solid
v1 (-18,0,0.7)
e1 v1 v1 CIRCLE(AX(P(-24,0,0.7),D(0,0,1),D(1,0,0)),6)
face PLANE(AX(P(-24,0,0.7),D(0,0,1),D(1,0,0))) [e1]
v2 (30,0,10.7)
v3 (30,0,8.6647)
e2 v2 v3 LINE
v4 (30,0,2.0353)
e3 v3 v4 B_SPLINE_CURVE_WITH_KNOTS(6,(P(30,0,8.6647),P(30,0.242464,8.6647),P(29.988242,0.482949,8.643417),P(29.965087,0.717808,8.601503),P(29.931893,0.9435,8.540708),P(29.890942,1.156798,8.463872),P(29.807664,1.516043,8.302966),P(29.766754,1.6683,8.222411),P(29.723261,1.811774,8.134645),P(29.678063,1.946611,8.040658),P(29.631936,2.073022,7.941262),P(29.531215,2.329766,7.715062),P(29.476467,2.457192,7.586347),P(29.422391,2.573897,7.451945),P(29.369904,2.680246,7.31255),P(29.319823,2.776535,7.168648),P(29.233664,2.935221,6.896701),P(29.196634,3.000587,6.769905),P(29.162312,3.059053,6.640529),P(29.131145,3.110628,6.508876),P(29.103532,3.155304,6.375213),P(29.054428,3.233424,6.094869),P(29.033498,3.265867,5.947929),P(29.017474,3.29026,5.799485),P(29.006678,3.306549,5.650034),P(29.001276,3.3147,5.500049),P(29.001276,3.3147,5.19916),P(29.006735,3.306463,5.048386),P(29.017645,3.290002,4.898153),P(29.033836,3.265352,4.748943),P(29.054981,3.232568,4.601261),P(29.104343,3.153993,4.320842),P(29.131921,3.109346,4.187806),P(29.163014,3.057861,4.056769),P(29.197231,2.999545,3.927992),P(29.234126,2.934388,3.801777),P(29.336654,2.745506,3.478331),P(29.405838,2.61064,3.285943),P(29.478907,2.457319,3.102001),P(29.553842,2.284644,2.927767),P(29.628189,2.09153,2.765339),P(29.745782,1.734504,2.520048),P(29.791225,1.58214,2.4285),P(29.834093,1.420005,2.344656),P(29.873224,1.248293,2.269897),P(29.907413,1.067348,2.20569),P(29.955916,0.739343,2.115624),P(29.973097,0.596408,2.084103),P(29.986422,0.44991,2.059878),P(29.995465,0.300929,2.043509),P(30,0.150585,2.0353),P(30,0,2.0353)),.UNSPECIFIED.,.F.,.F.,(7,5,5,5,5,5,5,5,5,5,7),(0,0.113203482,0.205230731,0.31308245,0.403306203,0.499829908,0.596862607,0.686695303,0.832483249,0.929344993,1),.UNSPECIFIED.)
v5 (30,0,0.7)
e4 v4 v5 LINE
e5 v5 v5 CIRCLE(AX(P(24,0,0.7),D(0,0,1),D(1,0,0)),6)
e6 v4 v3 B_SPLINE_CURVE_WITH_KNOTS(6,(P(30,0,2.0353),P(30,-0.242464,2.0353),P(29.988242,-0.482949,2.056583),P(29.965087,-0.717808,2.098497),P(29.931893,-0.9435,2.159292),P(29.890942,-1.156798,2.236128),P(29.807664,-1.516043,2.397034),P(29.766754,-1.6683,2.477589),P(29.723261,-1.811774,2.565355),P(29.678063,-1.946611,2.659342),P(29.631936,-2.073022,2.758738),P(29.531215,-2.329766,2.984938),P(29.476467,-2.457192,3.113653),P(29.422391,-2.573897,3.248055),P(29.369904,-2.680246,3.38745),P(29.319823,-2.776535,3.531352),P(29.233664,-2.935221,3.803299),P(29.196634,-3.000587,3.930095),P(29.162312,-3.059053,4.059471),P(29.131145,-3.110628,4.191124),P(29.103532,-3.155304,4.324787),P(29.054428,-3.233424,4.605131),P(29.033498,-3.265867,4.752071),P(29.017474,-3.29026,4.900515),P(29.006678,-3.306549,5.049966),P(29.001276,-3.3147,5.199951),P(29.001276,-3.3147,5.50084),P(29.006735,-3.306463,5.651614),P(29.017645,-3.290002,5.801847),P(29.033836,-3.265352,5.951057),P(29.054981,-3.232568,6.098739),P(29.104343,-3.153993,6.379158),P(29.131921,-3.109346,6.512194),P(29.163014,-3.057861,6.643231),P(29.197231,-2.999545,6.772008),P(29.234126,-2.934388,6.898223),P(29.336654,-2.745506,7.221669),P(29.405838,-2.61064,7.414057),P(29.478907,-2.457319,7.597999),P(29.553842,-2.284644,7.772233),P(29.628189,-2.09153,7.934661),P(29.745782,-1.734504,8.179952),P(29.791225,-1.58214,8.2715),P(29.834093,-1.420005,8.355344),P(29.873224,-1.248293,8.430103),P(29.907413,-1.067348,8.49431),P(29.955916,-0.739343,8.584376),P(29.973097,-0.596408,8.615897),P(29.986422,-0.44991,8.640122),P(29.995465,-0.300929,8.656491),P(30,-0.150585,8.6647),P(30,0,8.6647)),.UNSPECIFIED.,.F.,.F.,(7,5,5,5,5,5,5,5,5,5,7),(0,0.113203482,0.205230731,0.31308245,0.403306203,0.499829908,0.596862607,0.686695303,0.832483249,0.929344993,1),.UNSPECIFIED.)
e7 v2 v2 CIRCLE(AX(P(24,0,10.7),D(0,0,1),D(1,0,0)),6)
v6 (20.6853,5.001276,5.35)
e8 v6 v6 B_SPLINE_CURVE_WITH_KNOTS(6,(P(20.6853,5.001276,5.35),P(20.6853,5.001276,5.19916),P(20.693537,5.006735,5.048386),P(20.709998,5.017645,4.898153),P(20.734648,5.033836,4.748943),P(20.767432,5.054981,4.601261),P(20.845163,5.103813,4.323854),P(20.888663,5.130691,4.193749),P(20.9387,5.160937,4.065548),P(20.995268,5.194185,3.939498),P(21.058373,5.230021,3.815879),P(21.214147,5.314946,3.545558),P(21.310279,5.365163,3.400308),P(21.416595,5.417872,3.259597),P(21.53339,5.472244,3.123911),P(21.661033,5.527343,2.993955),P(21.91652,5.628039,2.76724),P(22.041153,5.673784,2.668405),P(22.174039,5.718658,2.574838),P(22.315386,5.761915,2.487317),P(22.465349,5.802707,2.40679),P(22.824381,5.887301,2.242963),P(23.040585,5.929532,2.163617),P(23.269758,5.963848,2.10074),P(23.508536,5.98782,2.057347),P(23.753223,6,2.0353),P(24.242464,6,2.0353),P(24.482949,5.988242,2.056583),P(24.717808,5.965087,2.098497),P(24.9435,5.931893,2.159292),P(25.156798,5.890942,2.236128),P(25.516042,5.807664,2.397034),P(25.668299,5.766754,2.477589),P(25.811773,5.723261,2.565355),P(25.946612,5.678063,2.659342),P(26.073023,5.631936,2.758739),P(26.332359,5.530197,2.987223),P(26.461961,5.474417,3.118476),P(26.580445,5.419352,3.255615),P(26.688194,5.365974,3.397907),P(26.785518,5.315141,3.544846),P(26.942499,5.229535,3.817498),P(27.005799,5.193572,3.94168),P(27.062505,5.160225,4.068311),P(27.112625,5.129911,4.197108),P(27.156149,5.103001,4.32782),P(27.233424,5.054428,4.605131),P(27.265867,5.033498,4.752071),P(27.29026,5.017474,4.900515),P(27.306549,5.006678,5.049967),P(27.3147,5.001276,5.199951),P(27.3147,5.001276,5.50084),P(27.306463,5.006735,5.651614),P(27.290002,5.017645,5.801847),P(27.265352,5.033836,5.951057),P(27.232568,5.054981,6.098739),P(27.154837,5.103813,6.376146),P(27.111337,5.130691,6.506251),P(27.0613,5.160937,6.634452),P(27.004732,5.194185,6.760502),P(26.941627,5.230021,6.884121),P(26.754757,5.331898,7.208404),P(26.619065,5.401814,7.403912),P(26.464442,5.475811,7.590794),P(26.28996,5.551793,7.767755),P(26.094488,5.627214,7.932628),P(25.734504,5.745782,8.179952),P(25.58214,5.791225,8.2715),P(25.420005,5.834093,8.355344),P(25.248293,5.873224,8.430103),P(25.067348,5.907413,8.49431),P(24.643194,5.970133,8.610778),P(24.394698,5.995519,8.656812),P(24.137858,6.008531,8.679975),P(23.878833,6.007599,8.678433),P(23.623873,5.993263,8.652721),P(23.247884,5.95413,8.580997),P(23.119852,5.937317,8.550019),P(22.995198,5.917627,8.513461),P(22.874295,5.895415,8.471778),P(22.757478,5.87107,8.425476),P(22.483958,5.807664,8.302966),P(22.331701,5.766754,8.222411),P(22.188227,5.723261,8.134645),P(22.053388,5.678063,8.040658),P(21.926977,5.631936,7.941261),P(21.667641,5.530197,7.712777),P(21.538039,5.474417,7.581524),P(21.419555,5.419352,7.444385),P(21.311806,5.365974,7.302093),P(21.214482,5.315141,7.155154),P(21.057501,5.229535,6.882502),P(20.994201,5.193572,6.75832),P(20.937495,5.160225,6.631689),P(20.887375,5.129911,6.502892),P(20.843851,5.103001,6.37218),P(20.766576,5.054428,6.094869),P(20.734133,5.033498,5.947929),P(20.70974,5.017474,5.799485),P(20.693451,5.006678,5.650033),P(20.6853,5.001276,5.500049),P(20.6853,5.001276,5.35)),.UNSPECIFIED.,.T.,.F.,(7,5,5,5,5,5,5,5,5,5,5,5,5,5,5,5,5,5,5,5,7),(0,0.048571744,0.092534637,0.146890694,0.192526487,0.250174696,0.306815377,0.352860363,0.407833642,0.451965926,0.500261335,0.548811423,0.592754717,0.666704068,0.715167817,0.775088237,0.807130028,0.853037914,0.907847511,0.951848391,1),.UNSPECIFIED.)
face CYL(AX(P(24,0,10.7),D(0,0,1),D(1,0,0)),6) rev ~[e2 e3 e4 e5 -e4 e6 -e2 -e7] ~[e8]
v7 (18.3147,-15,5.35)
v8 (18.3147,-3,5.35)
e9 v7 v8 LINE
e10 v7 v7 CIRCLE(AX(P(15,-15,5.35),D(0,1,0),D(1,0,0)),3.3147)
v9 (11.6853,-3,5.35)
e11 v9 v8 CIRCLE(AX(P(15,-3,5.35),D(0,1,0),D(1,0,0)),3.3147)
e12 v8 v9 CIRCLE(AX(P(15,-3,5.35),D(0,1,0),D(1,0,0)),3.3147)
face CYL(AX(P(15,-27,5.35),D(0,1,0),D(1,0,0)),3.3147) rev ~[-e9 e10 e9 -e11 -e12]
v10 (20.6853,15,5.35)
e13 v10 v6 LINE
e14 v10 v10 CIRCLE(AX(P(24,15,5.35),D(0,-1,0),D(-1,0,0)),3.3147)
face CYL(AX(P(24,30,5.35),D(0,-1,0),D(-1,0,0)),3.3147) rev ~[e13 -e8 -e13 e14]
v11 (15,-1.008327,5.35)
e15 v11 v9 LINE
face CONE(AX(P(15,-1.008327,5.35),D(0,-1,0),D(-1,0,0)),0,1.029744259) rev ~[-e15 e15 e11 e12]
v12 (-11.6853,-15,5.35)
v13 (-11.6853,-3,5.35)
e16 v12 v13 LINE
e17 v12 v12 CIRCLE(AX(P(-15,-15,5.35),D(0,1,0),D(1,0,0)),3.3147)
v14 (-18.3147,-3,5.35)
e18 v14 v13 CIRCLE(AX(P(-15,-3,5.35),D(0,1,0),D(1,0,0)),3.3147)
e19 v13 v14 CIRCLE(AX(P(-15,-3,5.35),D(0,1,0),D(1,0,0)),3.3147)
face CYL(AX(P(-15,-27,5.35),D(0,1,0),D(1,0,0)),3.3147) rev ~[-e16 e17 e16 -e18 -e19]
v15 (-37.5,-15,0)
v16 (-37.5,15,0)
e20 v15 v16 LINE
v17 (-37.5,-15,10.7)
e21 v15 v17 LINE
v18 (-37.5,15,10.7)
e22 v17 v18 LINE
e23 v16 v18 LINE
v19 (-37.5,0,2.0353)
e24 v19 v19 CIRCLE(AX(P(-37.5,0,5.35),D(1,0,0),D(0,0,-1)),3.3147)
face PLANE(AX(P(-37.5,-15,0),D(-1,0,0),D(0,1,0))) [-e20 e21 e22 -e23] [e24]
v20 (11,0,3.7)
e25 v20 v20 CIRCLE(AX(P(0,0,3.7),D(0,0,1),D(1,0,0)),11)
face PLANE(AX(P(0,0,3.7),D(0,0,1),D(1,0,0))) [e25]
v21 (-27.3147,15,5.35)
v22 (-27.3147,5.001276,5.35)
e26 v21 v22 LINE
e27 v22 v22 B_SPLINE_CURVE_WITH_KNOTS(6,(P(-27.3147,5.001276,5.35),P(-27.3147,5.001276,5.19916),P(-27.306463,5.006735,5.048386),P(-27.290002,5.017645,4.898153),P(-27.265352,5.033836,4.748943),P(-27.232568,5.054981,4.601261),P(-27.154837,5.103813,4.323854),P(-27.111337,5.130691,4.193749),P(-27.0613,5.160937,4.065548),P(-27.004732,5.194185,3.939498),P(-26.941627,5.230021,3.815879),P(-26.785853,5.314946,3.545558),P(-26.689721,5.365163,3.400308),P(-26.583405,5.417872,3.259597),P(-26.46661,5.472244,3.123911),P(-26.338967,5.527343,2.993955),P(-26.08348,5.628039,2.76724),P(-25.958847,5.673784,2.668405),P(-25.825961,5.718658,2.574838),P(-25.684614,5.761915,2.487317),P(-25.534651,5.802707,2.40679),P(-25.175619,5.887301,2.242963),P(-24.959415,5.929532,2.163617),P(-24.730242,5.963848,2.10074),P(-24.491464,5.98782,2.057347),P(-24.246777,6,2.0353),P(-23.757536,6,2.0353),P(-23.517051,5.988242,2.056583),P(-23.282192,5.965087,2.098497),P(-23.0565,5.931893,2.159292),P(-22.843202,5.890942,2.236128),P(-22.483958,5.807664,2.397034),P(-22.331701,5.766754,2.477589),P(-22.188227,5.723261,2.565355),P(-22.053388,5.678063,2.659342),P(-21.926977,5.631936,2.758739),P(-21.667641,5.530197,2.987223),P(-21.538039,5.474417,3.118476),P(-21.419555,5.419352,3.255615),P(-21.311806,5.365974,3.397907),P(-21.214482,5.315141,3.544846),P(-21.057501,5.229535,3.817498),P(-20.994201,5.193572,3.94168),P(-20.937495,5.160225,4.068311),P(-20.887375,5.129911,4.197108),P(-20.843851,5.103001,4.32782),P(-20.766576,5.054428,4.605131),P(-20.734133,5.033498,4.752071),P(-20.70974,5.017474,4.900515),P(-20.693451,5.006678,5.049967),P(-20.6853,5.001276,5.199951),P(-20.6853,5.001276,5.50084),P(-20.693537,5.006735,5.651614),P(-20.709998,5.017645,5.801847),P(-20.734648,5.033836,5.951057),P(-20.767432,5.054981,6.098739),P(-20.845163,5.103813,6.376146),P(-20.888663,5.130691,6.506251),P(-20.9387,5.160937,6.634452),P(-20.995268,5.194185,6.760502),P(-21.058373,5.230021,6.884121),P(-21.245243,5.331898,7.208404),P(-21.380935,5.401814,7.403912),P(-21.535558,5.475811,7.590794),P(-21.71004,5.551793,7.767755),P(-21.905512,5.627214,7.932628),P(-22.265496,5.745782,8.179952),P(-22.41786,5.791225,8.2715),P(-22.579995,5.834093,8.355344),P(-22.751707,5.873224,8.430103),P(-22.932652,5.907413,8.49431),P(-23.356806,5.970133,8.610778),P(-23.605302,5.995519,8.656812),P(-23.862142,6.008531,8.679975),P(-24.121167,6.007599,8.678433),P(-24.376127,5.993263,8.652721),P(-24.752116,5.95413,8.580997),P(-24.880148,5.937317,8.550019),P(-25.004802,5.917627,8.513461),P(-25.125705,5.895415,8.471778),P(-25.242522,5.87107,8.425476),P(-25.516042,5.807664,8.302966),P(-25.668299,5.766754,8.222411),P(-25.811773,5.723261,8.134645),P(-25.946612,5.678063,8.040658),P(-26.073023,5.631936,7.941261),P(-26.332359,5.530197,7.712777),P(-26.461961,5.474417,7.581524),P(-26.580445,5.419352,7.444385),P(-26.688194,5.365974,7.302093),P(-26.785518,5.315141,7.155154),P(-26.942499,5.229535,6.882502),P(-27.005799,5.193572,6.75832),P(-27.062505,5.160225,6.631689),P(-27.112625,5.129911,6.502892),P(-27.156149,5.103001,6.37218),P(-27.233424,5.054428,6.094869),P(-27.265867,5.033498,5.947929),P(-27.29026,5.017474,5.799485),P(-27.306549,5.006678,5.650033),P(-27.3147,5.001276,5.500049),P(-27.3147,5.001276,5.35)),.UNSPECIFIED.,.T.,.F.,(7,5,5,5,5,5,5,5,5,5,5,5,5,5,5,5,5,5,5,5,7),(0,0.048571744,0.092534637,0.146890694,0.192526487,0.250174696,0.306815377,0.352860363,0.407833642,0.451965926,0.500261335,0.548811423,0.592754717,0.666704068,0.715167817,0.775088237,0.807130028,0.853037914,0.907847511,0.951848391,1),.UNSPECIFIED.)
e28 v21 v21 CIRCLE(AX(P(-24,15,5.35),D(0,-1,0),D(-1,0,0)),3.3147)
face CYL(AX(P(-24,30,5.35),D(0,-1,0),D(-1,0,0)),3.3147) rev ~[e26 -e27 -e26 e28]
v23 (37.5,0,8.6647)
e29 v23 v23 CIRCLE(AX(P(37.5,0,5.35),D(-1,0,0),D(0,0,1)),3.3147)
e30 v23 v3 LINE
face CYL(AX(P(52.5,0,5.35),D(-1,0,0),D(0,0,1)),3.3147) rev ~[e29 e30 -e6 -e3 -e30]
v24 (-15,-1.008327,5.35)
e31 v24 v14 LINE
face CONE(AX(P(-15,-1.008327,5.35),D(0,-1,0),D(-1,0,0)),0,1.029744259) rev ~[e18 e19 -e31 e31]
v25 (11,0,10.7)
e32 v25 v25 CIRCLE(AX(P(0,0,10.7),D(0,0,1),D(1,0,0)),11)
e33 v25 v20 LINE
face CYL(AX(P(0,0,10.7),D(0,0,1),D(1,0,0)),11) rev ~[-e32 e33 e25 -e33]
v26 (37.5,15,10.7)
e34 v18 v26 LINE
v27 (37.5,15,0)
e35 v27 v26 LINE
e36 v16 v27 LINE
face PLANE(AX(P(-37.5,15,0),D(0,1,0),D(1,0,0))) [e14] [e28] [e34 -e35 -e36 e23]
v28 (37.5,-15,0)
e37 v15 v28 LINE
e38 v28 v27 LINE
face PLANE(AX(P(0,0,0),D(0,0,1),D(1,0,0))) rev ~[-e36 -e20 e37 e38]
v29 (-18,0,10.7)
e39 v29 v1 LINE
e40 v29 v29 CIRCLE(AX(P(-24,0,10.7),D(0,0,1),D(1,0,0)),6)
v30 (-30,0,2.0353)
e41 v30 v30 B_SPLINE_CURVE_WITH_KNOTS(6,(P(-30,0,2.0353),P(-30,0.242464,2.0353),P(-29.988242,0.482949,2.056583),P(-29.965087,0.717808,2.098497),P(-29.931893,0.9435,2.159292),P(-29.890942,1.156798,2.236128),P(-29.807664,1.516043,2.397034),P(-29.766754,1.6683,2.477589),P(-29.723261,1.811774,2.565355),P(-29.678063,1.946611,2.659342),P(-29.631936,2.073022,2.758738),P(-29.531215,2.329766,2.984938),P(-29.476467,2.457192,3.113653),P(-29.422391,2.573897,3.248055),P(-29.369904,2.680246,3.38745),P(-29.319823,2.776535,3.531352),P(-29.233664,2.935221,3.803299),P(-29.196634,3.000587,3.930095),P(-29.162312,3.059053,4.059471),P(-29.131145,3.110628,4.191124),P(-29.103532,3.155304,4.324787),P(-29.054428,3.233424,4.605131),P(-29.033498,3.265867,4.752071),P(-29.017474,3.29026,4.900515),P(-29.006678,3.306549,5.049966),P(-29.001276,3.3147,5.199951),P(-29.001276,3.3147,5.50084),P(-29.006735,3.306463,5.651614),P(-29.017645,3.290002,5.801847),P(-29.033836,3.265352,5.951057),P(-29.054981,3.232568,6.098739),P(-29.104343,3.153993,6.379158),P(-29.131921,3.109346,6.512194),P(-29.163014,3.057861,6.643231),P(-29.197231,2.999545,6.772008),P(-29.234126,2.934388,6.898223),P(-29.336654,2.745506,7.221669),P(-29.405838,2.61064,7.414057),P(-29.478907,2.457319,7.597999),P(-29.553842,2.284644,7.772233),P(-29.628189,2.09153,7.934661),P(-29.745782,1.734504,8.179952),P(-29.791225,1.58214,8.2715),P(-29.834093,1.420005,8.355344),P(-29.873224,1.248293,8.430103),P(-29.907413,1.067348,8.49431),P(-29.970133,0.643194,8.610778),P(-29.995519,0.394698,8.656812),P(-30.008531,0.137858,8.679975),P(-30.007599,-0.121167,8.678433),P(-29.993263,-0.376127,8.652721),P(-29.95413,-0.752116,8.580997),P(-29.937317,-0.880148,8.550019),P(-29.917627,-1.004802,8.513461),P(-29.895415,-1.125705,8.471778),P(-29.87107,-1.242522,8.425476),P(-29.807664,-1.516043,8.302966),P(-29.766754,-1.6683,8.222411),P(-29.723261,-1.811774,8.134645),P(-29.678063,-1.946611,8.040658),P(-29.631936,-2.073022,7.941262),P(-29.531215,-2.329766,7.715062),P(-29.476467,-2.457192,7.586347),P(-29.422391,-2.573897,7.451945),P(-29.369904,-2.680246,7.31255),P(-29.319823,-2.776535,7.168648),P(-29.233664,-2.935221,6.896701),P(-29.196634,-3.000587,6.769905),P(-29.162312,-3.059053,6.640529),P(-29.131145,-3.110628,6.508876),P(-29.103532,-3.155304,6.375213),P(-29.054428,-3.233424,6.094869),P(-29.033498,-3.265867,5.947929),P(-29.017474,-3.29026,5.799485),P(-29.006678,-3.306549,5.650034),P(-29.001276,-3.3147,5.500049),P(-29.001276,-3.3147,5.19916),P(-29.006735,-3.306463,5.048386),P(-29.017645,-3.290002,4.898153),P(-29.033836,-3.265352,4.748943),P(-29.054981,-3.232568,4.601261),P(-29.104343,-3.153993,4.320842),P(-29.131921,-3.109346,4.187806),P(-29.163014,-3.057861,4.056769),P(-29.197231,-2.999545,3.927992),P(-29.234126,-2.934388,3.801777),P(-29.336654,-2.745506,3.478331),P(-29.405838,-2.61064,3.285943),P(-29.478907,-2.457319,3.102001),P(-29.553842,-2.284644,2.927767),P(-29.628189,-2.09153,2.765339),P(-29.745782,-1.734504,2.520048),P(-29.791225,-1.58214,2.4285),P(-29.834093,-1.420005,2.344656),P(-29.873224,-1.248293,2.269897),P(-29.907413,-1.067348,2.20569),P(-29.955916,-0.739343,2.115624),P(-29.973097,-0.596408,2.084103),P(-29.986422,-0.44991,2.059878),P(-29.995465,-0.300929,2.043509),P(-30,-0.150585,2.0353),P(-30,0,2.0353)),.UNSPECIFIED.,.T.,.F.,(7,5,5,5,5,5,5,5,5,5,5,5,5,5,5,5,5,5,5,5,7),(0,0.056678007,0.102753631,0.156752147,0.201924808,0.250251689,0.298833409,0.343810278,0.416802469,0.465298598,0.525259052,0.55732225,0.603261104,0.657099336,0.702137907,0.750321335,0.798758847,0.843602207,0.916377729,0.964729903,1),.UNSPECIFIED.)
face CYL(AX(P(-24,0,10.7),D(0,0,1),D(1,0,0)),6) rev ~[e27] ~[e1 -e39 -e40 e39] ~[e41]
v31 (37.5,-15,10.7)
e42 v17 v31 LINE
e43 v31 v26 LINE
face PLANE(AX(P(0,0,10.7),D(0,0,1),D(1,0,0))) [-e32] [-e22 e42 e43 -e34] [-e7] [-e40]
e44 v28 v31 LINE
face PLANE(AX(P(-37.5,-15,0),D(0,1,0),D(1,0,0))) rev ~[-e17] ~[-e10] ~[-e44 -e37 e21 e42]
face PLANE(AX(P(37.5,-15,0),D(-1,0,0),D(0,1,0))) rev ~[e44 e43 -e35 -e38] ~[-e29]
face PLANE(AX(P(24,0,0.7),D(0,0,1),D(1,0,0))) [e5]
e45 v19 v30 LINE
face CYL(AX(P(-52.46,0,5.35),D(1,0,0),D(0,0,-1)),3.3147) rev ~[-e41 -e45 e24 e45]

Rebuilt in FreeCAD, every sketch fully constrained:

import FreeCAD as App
import Part
import Sketcher

V = App.Vector
Q = App.Units.Quantity

doc = App.newDocument("Part")
body = doc.addObject("PartDesign::Body", "Body")

# Sketch on XY plane
sketch1 = doc.addObject("Sketcher::SketchObject", "Sketch")
body.addObject(sketch1)
sketch1.AttachmentSupport = (doc.XY_Plane, [""])
sketch1.MapMode = "FlatFace"
sketch1.addGeometry([
    Part.LineSegment(V(-37.5, 15, 0), V(-37.5, -15, 0)),
    Part.LineSegment(V(-37.5, -15, 0), V(37.5, -15, 0)),
    Part.LineSegment(V(37.5, -15, 0), V(37.5, 15, 0)),
    Part.LineSegment(V(37.5, 15, 0), V(-37.5, 15, 0)),
], False)
sketch1.addConstraint([
    Sketcher.Constraint("Coincident", 0, 2, 1, 1),
    Sketcher.Constraint("Coincident", 1, 2, 2, 1),
    Sketcher.Constraint("Coincident", 2, 2, 3, 1),
    Sketcher.Constraint("Coincident", 3, 2, 0, 1),
    Sketcher.Constraint("Vertical", 0),
    Sketcher.Constraint("Horizontal", 1),
    Sketcher.Constraint("Vertical", 2),
    Sketcher.Constraint("Horizontal", 3),
    Sketcher.Constraint("Symmetric", 0, 2, 2, 2, -1, 1),
    Sketcher.Constraint("DistanceX", 1, 1, 1, 2, Q("75 mm")),
    Sketcher.Constraint("DistanceY", 0, 2, 0, 1, Q("30 mm")),
])
pad1 = doc.addObject("PartDesign::Pad", "Pad")
body.addObject(pad1)
pad1.Profile = sketch1
pad1.Length = 10.7

# Sketch on XY plane
sketch2 = doc.addObject("Sketcher::SketchObject", "Sketch001")
body.addObject(sketch2)
sketch2.AttachmentSupport = (doc.XY_Plane, [""])
sketch2.MapMode = "FlatFace"
sketch2.AttachmentOffset = App.Placement(V(0, 0, 10.7), App.Rotation())
sketch2.addGeometry([
    Part.Circle(V(-24, 0, 0), V(0, 0, 1), 6),
    Part.Circle(V(24, 0, 0), V(0, 0, 1), 6),
], False)
sketch2.addConstraint([
    Sketcher.Constraint("Equal", 0, 1),
    Sketcher.Constraint("Symmetric", 0, 3, 1, 3, -1, 1),
    Sketcher.Constraint("PointOnObject", 0, 3, -1),
    Sketcher.Constraint("Diameter", 0, Q("12 mm")),
    Sketcher.Constraint("DistanceX", 0, 3, -1, 1, Q("24 mm")),
])
pocket1 = doc.addObject("PartDesign::Pocket", "Pocket")
body.addObject(pocket1)
pocket1.Profile = sketch2
pocket1.Length = 10

# Sketch on XY plane
sketch3 = doc.addObject("Sketcher::SketchObject", "Sketch002")
body.addObject(sketch3)
sketch3.AttachmentSupport = (doc.XY_Plane, [""])
sketch3.MapMode = "FlatFace"
sketch3.AttachmentOffset = App.Placement(V(0, 0, 10.7), App.Rotation())
sketch3.addGeometry(Part.Circle(V(0, 0, 0), V(0, 0, 1), 11), False)
sketch3.addConstraint([
    Sketcher.Constraint("Coincident", 0, 3, -1, 1),
    Sketcher.Constraint("Diameter", 0, Q("22 mm")),
])
pocket2 = doc.addObject("PartDesign::Pocket", "Pocket001")
body.addObject(pocket2)
pocket2.Profile = sketch3
pocket2.Length = 7

# Sketch on XZ plane
sketch4 = doc.addObject("Sketcher::SketchObject", "Sketch003")
body.addObject(sketch4)
sketch4.AttachmentSupport = (doc.XZ_Plane, [""])
sketch4.MapMode = "FlatFace"
sketch4.AttachmentOffset = App.Placement(V(0, 0, -15), App.Rotation())
sketch4.addGeometry([
    Part.Circle(V(-24, 5.35, 0), V(0, 0, 1), 3.3147),
    Part.Circle(V(24, 5.35, 0), V(0, 0, 1), 3.3147),
], False)
sketch4.addConstraint([
    Sketcher.Constraint("Equal", 0, 1),
    Sketcher.Constraint("Symmetric", 0, 3, 1, 3, -2),
    Sketcher.Constraint("DistanceX", 0, 3, -1, 1, Q("24 mm")),
    Sketcher.Constraint("Diameter", 0, Q("6.6294 mm")),
    Sketcher.Constraint("DistanceY", -1, 1, 0, 3, Q("5.35 mm")),
])
doc.recompute()
hole = doc.addObject("PartDesign::Hole", "Hole")
body.addObject(hole)
hole.Profile = sketch4
hole.ThreadType = "None"
hole.Diameter = 6.6294
hole.DepthType = "Dimension"
hole.Depth = 15
hole.DrillPoint = "Angled"
hole.DrillPointAngle = 118
hole.Reversed = True

# Sketch on YZ plane
sketch5 = doc.addObject("Sketcher::SketchObject", "Sketch004")
body.addObject(sketch5)
sketch5.AttachmentSupport = (doc.YZ_Plane, [""])
sketch5.MapMode = "FlatFace"
sketch5.AttachmentOffset = App.Placement(V(0, 0, -37.5), App.Rotation())
sketch5.addGeometry(Part.Circle(V(0, 5.35, 0), V(0, 0, 1), 3.3147), False)
sketch5.addConstraint([
    Sketcher.Constraint("PointOnObject", 0, 3, -2),
    Sketcher.Constraint("Diameter", 0, Q("6.6294 mm")),
    Sketcher.Constraint("DistanceY", -1, 1, 0, 3, Q("5.35 mm")),
])
doc.recompute()
hole2 = doc.addObject("PartDesign::Hole", "Hole001")
body.addObject(hole2)
hole2.Profile = sketch5
hole2.ThreadType = "None"
hole2.Diameter = 6.6294
hole2.DepthType = "Dimension"
hole2.Depth = 14.96
hole2.DrillPoint = "Angled"
hole2.DrillPointAngle = 118
hole2.Reversed = True

# Sketch on YZ plane
sketch6 = doc.addObject("Sketcher::SketchObject", "Sketch005")
body.addObject(sketch6)
sketch6.AttachmentSupport = (doc.YZ_Plane, [""])
sketch6.MapMode = "FlatFace"
sketch6.AttachmentOffset = App.Placement(V(0, 0, 37.5), App.Rotation())
sketch6.addGeometry(Part.Circle(V(0, 5.35, 0), V(0, 0, 1), 3.3147), False)
sketch6.addConstraint([
    Sketcher.Constraint("PointOnObject", 0, 3, -2),
    Sketcher.Constraint("Diameter", 0, Q("6.6294 mm")),
    Sketcher.Constraint("DistanceY", -1, 1, 0, 3, Q("5.35 mm")),
])
doc.recompute()
hole3 = doc.addObject("PartDesign::Hole", "Hole002")
body.addObject(hole3)
hole3.Profile = sketch6
hole3.ThreadType = "None"
hole3.Diameter = 6.6294
hole3.DepthType = "Dimension"
hole3.Depth = 15
hole3.DrillPoint = "Angled"
hole3.DrillPointAngle = 118

# Sketch on XZ plane
sketch7 = doc.addObject("Sketcher::SketchObject", "Sketch006")
body.addObject(sketch7)
sketch7.AttachmentSupport = (doc.XZ_Plane, [""])
sketch7.MapMode = "FlatFace"
sketch7.AttachmentOffset = App.Placement(V(0, 0, 15), App.Rotation())
sketch7.addGeometry([
    Part.Circle(V(-15, 5.35, 0), V(0, 0, 1), 3.3147),
    Part.Circle(V(15, 5.35, 0), V(0, 0, 1), 3.3147),
], False)
sketch7.addConstraint([
    Sketcher.Constraint("Equal", 0, 1),
    Sketcher.Constraint("Symmetric", 0, 3, 1, 3, -2),
    Sketcher.Constraint("DistanceX", 0, 3, -1, 1, Q("15 mm")),
    Sketcher.Constraint("Diameter", 0, Q("6.6294 mm")),
    Sketcher.Constraint("DistanceY", -1, 1, 0, 3, Q("5.35 mm")),
])
doc.recompute()
hole4 = doc.addObject("PartDesign::Hole", "Hole003")
body.addObject(hole4)
hole4.Profile = sketch7
hole4.ThreadType = "None"
hole4.Diameter = 6.6294
hole4.DepthType = "Dimension"
hole4.Depth = 12
hole4.DrillPoint = "Angled"
hole4.DrillPointAngle = 118

doc.recompute()
